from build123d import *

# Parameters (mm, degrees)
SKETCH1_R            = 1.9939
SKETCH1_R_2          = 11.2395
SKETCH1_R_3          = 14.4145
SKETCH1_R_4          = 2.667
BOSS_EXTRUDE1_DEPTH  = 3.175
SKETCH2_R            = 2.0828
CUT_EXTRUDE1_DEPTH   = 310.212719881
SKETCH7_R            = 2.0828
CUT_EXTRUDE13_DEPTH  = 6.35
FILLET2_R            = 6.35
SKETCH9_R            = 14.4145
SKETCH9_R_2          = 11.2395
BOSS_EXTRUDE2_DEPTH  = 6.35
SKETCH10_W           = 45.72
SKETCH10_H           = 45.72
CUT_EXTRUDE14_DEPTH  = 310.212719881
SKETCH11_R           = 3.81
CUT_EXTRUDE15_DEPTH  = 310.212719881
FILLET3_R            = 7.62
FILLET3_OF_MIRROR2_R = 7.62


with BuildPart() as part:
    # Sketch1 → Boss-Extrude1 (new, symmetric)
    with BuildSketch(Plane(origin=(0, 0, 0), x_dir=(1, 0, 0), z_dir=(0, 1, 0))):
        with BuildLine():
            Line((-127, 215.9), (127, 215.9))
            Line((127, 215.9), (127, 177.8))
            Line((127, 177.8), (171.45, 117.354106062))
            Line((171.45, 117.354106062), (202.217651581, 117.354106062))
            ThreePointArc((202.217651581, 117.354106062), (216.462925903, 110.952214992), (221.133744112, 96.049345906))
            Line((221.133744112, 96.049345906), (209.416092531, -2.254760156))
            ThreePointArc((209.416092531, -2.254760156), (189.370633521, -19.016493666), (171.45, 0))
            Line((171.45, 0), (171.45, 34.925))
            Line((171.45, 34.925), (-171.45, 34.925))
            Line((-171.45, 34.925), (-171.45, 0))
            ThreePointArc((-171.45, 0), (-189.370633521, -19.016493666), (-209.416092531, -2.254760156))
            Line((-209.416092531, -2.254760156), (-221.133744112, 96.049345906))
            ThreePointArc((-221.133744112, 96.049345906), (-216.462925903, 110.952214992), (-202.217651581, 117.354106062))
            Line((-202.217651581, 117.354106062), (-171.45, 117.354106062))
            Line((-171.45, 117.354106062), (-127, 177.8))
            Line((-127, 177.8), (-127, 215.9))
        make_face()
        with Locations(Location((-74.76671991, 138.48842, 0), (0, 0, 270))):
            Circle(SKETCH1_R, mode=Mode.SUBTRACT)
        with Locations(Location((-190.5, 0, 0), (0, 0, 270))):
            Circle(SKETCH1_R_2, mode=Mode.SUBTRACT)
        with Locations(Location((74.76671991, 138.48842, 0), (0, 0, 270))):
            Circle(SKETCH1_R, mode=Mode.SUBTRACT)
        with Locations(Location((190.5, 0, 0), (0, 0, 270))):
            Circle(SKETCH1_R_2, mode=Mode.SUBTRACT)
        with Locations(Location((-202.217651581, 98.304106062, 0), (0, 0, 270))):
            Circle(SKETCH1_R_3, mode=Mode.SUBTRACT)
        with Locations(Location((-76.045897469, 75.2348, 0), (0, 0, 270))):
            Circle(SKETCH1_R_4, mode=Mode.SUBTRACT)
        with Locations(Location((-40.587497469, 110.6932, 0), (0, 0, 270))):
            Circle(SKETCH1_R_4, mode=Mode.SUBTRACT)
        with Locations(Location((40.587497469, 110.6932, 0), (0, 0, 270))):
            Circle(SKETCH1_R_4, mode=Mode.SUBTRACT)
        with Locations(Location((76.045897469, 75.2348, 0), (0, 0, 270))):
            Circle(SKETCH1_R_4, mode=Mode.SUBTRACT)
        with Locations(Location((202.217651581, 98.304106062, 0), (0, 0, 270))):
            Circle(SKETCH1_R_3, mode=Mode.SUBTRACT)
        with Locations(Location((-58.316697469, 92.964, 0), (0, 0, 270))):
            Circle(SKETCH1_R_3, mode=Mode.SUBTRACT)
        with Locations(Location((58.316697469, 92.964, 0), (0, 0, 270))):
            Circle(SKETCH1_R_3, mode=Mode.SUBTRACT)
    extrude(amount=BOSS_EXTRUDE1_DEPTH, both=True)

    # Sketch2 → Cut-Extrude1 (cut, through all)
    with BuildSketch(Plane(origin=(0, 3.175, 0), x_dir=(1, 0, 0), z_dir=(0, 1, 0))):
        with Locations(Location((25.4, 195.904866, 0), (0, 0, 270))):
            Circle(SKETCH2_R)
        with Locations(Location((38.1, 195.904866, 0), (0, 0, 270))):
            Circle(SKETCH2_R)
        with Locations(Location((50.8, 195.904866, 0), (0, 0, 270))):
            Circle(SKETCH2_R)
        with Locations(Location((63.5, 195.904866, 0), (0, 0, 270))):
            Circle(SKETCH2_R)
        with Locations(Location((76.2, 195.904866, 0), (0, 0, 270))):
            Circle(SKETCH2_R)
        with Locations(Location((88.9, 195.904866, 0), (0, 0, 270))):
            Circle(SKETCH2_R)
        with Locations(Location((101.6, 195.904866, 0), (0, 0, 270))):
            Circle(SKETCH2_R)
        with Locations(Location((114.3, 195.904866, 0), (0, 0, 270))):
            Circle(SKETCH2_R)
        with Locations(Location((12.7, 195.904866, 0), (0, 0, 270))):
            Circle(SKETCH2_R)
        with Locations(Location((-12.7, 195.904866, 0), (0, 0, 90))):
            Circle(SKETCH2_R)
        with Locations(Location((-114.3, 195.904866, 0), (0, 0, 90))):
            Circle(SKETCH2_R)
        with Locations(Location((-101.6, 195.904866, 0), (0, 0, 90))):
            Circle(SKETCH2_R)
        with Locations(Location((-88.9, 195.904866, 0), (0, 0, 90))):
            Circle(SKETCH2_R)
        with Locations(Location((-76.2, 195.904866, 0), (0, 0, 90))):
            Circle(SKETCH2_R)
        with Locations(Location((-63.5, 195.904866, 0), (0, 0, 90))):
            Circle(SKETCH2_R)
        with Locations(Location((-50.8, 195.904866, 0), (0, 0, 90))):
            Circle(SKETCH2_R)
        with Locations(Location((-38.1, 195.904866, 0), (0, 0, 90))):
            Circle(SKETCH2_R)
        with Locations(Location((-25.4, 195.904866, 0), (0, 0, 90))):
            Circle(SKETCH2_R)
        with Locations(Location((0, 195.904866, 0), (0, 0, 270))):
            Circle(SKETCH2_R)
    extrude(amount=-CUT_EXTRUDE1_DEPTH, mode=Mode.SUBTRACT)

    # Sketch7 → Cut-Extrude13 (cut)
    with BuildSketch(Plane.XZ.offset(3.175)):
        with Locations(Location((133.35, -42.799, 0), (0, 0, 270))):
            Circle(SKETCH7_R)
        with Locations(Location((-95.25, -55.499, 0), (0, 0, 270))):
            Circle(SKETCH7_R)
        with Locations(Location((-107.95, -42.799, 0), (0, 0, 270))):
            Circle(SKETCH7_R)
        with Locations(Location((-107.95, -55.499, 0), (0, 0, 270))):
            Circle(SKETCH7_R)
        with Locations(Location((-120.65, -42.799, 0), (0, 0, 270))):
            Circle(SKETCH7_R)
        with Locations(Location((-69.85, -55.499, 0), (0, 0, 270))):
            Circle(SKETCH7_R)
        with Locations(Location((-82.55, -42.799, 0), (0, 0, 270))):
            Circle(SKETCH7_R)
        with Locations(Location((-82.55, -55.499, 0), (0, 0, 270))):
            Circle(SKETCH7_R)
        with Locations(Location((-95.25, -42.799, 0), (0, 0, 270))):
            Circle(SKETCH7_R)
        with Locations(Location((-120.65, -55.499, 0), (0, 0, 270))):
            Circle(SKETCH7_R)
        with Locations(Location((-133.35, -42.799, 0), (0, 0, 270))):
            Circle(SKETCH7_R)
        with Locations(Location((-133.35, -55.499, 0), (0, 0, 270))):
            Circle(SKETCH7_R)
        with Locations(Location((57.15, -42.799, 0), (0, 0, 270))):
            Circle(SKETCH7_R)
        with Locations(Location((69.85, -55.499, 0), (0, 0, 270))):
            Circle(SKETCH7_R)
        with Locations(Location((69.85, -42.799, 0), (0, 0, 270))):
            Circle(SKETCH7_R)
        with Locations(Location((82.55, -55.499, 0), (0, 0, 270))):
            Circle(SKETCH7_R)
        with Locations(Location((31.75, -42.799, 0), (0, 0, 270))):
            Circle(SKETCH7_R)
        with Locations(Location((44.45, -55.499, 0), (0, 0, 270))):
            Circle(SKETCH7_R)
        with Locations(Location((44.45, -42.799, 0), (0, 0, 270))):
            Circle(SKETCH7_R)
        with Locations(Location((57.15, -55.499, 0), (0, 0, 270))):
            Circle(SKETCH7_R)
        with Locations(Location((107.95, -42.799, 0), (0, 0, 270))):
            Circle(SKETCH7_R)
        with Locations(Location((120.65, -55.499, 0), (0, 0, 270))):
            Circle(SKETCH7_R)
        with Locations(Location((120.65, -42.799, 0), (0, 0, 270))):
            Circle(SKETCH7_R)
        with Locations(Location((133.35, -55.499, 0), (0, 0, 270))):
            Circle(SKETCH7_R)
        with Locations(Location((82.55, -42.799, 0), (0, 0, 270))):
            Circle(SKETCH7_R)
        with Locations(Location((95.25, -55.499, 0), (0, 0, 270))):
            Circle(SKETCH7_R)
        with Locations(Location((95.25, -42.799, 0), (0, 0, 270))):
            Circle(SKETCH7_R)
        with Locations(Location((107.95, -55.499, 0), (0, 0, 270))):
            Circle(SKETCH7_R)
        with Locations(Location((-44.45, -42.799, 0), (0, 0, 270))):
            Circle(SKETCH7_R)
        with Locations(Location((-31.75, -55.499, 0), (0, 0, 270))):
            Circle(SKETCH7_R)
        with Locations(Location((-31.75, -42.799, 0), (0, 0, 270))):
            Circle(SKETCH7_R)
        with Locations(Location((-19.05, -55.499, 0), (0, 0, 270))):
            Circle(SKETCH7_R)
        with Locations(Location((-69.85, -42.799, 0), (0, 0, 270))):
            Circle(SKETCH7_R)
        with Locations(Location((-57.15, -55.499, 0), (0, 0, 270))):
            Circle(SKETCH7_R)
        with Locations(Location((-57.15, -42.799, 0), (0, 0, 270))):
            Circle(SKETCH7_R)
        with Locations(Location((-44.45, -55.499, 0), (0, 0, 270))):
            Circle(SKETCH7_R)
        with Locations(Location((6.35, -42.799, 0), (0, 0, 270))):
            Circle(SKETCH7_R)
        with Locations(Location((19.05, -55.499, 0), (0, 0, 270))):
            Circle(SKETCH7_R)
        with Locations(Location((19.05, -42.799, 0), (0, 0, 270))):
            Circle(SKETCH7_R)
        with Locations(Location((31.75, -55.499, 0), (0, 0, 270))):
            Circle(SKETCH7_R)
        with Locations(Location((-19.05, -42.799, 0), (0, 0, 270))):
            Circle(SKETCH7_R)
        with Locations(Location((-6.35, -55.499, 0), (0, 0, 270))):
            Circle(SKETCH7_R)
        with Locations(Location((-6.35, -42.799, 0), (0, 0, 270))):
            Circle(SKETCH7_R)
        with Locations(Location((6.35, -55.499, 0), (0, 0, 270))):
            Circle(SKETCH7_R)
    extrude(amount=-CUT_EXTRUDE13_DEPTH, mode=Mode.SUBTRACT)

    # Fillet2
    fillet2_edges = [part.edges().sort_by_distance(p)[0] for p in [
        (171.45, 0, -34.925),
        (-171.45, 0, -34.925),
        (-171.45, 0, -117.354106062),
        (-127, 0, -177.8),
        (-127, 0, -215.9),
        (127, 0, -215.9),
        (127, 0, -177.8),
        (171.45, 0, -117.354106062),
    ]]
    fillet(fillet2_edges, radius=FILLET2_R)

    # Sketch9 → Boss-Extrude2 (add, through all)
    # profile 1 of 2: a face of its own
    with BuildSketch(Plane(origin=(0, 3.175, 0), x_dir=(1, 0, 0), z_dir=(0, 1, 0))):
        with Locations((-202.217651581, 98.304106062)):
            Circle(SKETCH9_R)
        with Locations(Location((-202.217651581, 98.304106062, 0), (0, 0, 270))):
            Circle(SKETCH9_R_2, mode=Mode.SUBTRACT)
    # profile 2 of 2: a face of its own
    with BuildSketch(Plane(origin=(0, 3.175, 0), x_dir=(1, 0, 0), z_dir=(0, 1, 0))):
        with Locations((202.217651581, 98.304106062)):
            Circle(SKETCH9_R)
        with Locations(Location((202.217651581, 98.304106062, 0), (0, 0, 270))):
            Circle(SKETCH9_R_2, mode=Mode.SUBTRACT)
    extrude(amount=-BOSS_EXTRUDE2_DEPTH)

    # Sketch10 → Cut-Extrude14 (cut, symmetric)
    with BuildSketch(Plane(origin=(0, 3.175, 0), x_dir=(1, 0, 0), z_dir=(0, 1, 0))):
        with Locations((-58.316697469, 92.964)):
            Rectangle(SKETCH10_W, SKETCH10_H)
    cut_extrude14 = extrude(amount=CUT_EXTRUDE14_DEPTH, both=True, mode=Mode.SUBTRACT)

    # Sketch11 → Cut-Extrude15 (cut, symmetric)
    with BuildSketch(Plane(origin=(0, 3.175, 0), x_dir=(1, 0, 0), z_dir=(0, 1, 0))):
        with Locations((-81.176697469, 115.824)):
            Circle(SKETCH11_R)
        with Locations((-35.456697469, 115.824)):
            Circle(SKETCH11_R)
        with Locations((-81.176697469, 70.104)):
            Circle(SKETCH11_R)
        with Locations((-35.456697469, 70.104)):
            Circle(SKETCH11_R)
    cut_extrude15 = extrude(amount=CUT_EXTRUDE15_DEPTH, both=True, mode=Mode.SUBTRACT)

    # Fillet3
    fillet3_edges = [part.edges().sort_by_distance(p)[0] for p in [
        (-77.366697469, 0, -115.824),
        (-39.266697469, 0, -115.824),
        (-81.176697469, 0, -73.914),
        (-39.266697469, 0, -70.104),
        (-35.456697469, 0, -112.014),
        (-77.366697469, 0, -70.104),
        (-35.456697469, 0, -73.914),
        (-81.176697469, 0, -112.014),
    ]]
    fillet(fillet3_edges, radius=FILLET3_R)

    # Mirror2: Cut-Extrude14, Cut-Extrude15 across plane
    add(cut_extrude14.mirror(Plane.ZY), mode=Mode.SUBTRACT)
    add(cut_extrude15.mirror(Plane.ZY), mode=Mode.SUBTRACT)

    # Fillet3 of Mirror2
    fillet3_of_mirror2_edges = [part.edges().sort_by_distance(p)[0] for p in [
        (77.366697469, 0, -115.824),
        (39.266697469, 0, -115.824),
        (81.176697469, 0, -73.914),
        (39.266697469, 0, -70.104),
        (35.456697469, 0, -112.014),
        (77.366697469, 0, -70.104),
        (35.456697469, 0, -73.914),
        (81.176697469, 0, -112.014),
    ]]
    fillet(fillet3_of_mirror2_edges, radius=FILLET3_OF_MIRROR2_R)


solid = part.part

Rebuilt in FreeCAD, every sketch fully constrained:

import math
import FreeCAD as App
import Part
import Sketcher
from FreeCAD import Vector
Q = App.Units.Quantity


def edges_at(feature, points):
    """Names of the edges that pass closest to the given points."""
    edges = feature.Shape.Edges
    near = lambda p: min(range(len(edges)), key=lambda i: edges[i].distToShape(Part.Vertex(*p))[0])
    return sorted({f"Edge{near(p) + 1}" for p in points})


def add_polygon(sketch, points):
    """Adds a closed chain of lines whose ends are joined by coincident constraints."""
    first, n = sketch.GeometryCount, len(points)
    for a, b in zip(points, points[1:] + points[:1]):
        sketch.addGeometry(Part.LineSegment(App.Vector(*a, 0), App.Vector(*b, 0)), False)
    for i in range(n):
        sketch.addConstraint(Sketcher.Constraint("Coincident", first + i, 2, first + (i + 1) % n, 1))

doc = App.newDocument("Part")
body = doc.addObject("PartDesign::Body", "Body")

sketch1 = body.newObject("Sketcher::SketchObject", "Sketch")
sketch1.AttachmentSupport = (doc.getObject("XZ_Plane"), [""])
sketch1.MapMode = "FlatFace"
sketch1.addGeometry(Part.LineSegment(Vector(127, -215.9, 0), Vector(-127, -215.9, 0)), False)
sketch1.addGeometry(Part.LineSegment(Vector(-127, -215.9, 0), Vector(-127, -177.8, 0)), False)
sketch1.addGeometry(Part.LineSegment(Vector(-127, -177.8, 0), Vector(-171.4, -117.4, 0)), False)
sketch1.addGeometry(Part.LineSegment(Vector(-171.4, -117.4, 0), Vector(-202.2, -117.4, 0)), False)
sketch1.addGeometry(Part.ArcOfCircle(Part.Circle(Vector(-202.2, -98.3, 0), Vector(0, 0, 1), 19), math.radians(173), math.radians(270)), False)
sketch1.addGeometry(Part.LineSegment(Vector(-221.1, -96, 0), Vector(-209.4, 2.3, 0)), False)
sketch1.addGeometry(Part.ArcOfCircle(Part.Circle(Vector(-190.5, 0, 0), Vector(0, 0, 1), 19.1), math.radians(0), math.radians(173)), False)
sketch1.addGeometry(Part.LineSegment(Vector(-171.4, 0, 0), Vector(-171.4, -34.9, 0)), False)
sketch1.addGeometry(Part.LineSegment(Vector(-171.4, -34.9, 0), Vector(171.4, -34.9, 0)), False)
sketch1.addGeometry(Part.LineSegment(Vector(171.4, -34.9, 0), Vector(171.4, 0, 0)), False)
sketch1.addGeometry(Part.ArcOfCircle(Part.Circle(Vector(190.5, 0, 0), Vector(0, 0, 1), 19.1), math.radians(7), math.radians(180)), False)
sketch1.addGeometry(Part.LineSegment(Vector(209.4, 2.3, 0), Vector(221.1, -96, 0)), False)
sketch1.addGeometry(Part.ArcOfCircle(Part.Circle(Vector(202.2, -98.3, 0), Vector(0, 0, 1), 19), math.radians(-90), math.radians(7)), False)
sketch1.addGeometry(Part.LineSegment(Vector(202.2, -117.4, 0), Vector(171.4, -117.4, 0)), False)
sketch1.addGeometry(Part.LineSegment(Vector(171.4, -117.4, 0), Vector(127, -177.8, 0)), False)
sketch1.addGeometry(Part.LineSegment(Vector(127, -177.8, 0), Vector(127, -215.9, 0)), False)
sketch1.addGeometry(Part.Circle(Vector(190.5, 0, 0), Vector(0, 0, 1), 11.2), False)
sketch1.addGeometry(Part.Circle(Vector(-190.5, 0, 0), Vector(0, 0, 1), 11.2), False)
sketch1.addGeometry(Part.Circle(Vector(202.2, -98.3, 0), Vector(0, 0, 1), 14.4), False)
sketch1.addGeometry(Part.Circle(Vector(76, -75.2, 0), Vector(0, 0, 1), 2.7), False)
sketch1.addGeometry(Part.Circle(Vector(58.3, -93, 0), Vector(0, 0, 1), 14.4), False)
sketch1.addGeometry(Part.Circle(Vector(40.6, -110.7, 0), Vector(0, 0, 1), 2.7), False)
sketch1.addGeometry(Part.Circle(Vector(74.8, -138.5, 0), Vector(0, 0, 1), 2), False)
sketch1.addGeometry(Part.Circle(Vector(-76, -75.2, 0), Vector(0, 0, 1), 2.7), False)
sketch1.addGeometry(Part.Circle(Vector(-58.3, -93, 0), Vector(0, 0, 1), 14.4), False)
sketch1.addGeometry(Part.Circle(Vector(-202.2, -98.3, 0), Vector(0, 0, 1), 14.4), False)
sketch1.addGeometry(Part.Circle(Vector(-40.6, -110.7, 0), Vector(0, 0, 1), 2.7), False)
sketch1.addGeometry(Part.Circle(Vector(-74.8, -138.5, 0), Vector(0, 0, 1), 2), False)
sketch1.addConstraint(Sketcher.Constraint("Coincident", 0, 2, 1, 1))
sketch1.addConstraint(Sketcher.Constraint("Coincident", 1, 2, 2, 1))
sketch1.addConstraint(Sketcher.Constraint("Coincident", 2, 2, 3, 1))
sketch1.addConstraint(Sketcher.Constraint("Tangent", 3, 2, 4, 2))
sketch1.addConstraint(Sketcher.Constraint("Tangent", 4, 1, 5, 1))
sketch1.addConstraint(Sketcher.Constraint("Tangent", 5, 2, 6, 2))
sketch1.addConstraint(Sketcher.Constraint("Tangent", 6, 1, 7, 1))
sketch1.addConstraint(Sketcher.Constraint("Coincident", 7, 2, 8, 1))
sketch1.addConstraint(Sketcher.Constraint("Coincident", 8, 2, 9, 1))
sketch1.addConstraint(Sketcher.Constraint("Tangent", 9, 2, 10, 2))
sketch1.addConstraint(Sketcher.Constraint("Tangent", 10, 1, 11, 1))
sketch1.addConstraint(Sketcher.Constraint("Tangent", 11, 2, 12, 2))
sketch1.addConstraint(Sketcher.Constraint("Tangent", 12, 1, 13, 1))
sketch1.addConstraint(Sketcher.Constraint("Coincident", 13, 2, 14, 1))
sketch1.addConstraint(Sketcher.Constraint("Coincident", 14, 2, 15, 1))
sketch1.addConstraint(Sketcher.Constraint("Coincident", 15, 2, 0, 1))
sketch1.addConstraint(Sketcher.Constraint("Horizontal", 0))
sketch1.addConstraint(Sketcher.Constraint("Vertical", 1))
sketch1.addConstraint(Sketcher.Constraint("Horizontal", 3))
sketch1.addConstraint(Sketcher.Constraint("Vertical", 7))
sketch1.addConstraint(Sketcher.Constraint("Horizontal", 8))
sketch1.addConstraint(Sketcher.Constraint("Vertical", 9))
sketch1.addConstraint(Sketcher.Constraint("Horizontal", 13))
sketch1.addConstraint(Sketcher.Constraint("Vertical", 15))
sketch1.addConstraint(Sketcher.Constraint("Coincident", 16, 3, 10, 3))
sketch1.addConstraint(Sketcher.Constraint("Coincident", 17, 3, 6, 3))
sketch1.addConstraint(Sketcher.Constraint("Coincident", 18, 3, 12, 3))
sketch1.addConstraint(Sketcher.Constraint("Coincident", 25, 3, 4, 3))
sketch1.addConstraint(Sketcher.Constraint("Equal", 4, 6))
sketch1.addConstraint(Sketcher.Constraint("Equal", 6, 10))
sketch1.addConstraint(Sketcher.Constraint("Equal", 10, 12))
sketch1.addConstraint(Sketcher.Constraint("Equal", 16, 17))
sketch1.addConstraint(Sketcher.Constraint("Equal", 18, 20))
sketch1.addConstraint(Sketcher.Constraint("Equal", 19, 21))
sketch1.addConstraint(Sketcher.Constraint("Equal", 21, 23))
sketch1.addConstraint(Sketcher.Constraint("Equal", 20, 24))
sketch1.addConstraint(Sketcher.Constraint("Equal", 24, 25))
sketch1.addConstraint(Sketcher.Constraint("Equal", 23, 26))
sketch1.addConstraint(Sketcher.Constraint("Equal", 22, 27))
sketch1.addConstraint(Sketcher.Constraint("Symmetric", 6, 3, 10, 3, -1, 1))
sketch1.addConstraint(Sketcher.Constraint("Symmetric", 4, 3, 12, 3, -2))
sketch1.addConstraint(Sketcher.Constraint("Symmetric", 19, 3, 23, 3, -2))
sketch1.addConstraint(Sketcher.Constraint("Symmetric", 20, 3, 24, 3, -2))
sketch1.addConstraint(Sketcher.Constraint("Symmetric", 21, 3, 26, 3, -2))
sketch1.addConstraint(Sketcher.Constraint("Symmetric", 22, 3, 27, 3, -2))
sketch1.addConstraint(Sketcher.Constraint("Symmetric", 1, 2, 14, 2, -2))
sketch1.addConstraint(Sketcher.Constraint("PointOnObject", 6, 3, -1))
sketch1.addConstraint(Sketcher.Constraint("Vertical", 2, 2, 6, 1))
sketch1.addConstraint(Sketcher.Constraint("Vertical", 9, 2, 13, 2))
sketch1.addConstraint(Sketcher.Constraint("Diameter", 19, Q("0.21 in")))
sketch1.addConstraint(Sketcher.Constraint("DistanceX", 0, 2, 0, 1, Q("10 in")))
sketch1.addConstraint(Sketcher.Constraint("Radius", 4, Q("0.75 in")))
sketch1.addConstraint(Sketcher.Constraint("Diameter", 16, Q("0.885 in")))
sketch1.addConstraint(Sketcher.Constraint("Diameter", 18, Q("1.135 in")))
sketch1.addConstraint(Sketcher.Constraint("Diameter", 22, Q("0.157 in")))
sketch1.addConstraint(Sketcher.Constraint("DistanceX", 8, 1, 8, 2, Q("13.5 in")))
sketch1.addConstraint(Sketcher.Constraint("DistanceY", 1, 1, 1, 2, Q("1.5 in")))
sketch1.addConstraint(Sketcher.Constraint("DistanceY", 1, 2, -1, 1, Q("7 in")))
sketch1.addConstraint(Sketcher.Constraint("DistanceY", 7, 2, 7, 1, Q("1.375 in")))
sketch1.addConstraint(Sketcher.Constraint("DistanceY", 20, 3, -1, 1, Q("3.66 in")))
sketch1.addConstraint(Sketcher.Constraint("DistanceY", 19, 3, -1, 1, Q("2.962 in")))
sketch1.addConstraint(Sketcher.Constraint("DistanceY", 21, 3, -1, 1, Q("4.358 in")))
sketch1.addConstraint(Sketcher.Constraint("DistanceX", 20, 3, 19, 3, Q("0.698 in")))
sketch1.addConstraint(Sketcher.Constraint("DistanceX", 21, 3, 20, 3, Q("0.698 in")))
sketch1.addConstraint(Sketcher.Constraint("DistanceY", 22, 3, -1, 1, Q("5.4523 in")))
sketch1.addConstraint(Sketcher.Constraint("DistanceX", 3, 2, 3, 1, Q("30.767652 mm")))
sketch1.addConstraint(Sketcher.Constraint("Distance", 2, Q("75.030051 mm")))
sketch1.addConstraint(Sketcher.Constraint("DistanceX", -1, 1, 22, 3, Q("74.76672 mm")))
sketch1.addConstraint(Sketcher.Constraint("DistanceX", -1, 1, 19, 3, Q("76.045897 mm")))
pad1 = body.newObject("PartDesign::Pad", "Pad")
pad1.Profile = sketch1
pad1.Length = Q("0.25 in")
pad1.Midplane = True

sketch2 = body.newObject("Sketcher::SketchObject", "Sketch001")
sketch2.AttachmentSupport = (doc.getObject("XZ_Plane"), [""])
sketch2.MapMode = "FlatFace"
sketch2.AttachmentOffset = App.Placement(Vector(0, 0, -0.125 * 25.4), App.Rotation())
sketch2.addGeometry(Part.Circle(Vector(25.4, -195.9, 0), Vector(0, 0, 1), 2.1), False)
sketch2.addGeometry(Part.Circle(Vector(38.1, -195.9, 0), Vector(0, 0, 1), 2.1), False)
sketch2.addGeometry(Part.Circle(Vector(50.8, -195.9, 0), Vector(0, 0, 1), 2.1), False)
sketch2.addGeometry(Part.Circle(Vector(63.5, -195.9, 0), Vector(0, 0, 1), 2.1), False)
sketch2.addGeometry(Part.Circle(Vector(76.2, -195.9, 0), Vector(0, 0, 1), 2.1), False)
sketch2.addGeometry(Part.Circle(Vector(88.9, -195.9, 0), Vector(0, 0, 1), 2.1), False)
sketch2.addGeometry(Part.Circle(Vector(101.6, -195.9, 0), Vector(0, 0, 1), 2.1), False)
sketch2.addGeometry(Part.Circle(Vector(114.3, -195.9, 0), Vector(0, 0, 1), 2.1), False)
sketch2.addGeometry(Part.Circle(Vector(12.7, -195.9, 0), Vector(0, 0, 1), 2.1), False)
sketch2.addGeometry(Part.Circle(Vector(-12.7, -195.9, 0), Vector(0, 0, 1), 2.1), False)
sketch2.addGeometry(Part.Circle(Vector(-114.3, -195.9, 0), Vector(0, 0, 1), 2.1), False)
sketch2.addGeometry(Part.Circle(Vector(-101.6, -195.9, 0), Vector(0, 0, 1), 2.1), False)
sketch2.addGeometry(Part.Circle(Vector(-88.9, -195.9, 0), Vector(0, 0, 1), 2.1), False)
sketch2.addGeometry(Part.Circle(Vector(-76.2, -195.9, 0), Vector(0, 0, 1), 2.1), False)
sketch2.addGeometry(Part.Circle(Vector(-63.5, -195.9, 0), Vector(0, 0, 1), 2.1), False)
sketch2.addGeometry(Part.Circle(Vector(-50.8, -195.9, 0), Vector(0, 0, 1), 2.1), False)
sketch2.addGeometry(Part.Circle(Vector(-38.1, -195.9, 0), Vector(0, 0, 1), 2.1), False)
sketch2.addGeometry(Part.Circle(Vector(-25.4, -195.9, 0), Vector(0, 0, 1), 2.1), False)
sketch2.addGeometry(Part.Circle(Vector(0, -195.9, 0), Vector(0, 0, 1), 2.1), False)
sketch2.addConstraint(Sketcher.Constraint("Equal", 0, 1))
sketch2.addConstraint(Sketcher.Constraint("Equal", 1, 2))
sketch2.addConstraint(Sketcher.Constraint("Equal", 2, 3))
sketch2.addConstraint(Sketcher.Constraint("Equal", 3, 4))
sketch2.addConstraint(Sketcher.Constraint("Equal", 4, 5))
sketch2.addConstraint(Sketcher.Constraint("Equal", 5, 6))
sketch2.addConstraint(Sketcher.Constraint("Equal", 6, 7))
sketch2.addConstraint(Sketcher.Constraint("Equal", 7, 8))
sketch2.addConstraint(Sketcher.Constraint("Equal", 8, 9))
sketch2.addConstraint(Sketcher.Constraint("Equal", 9, 10))
sketch2.addConstraint(Sketcher.Constraint("Equal", 10, 11))
sketch2.addConstraint(Sketcher.Constraint("Equal", 11, 12))
sketch2.addConstraint(Sketcher.Constraint("Equal", 12, 13))
sketch2.addConstraint(Sketcher.Constraint("Equal", 13, 14))
sketch2.addConstraint(Sketcher.Constraint("Equal", 14, 15))
sketch2.addConstraint(Sketcher.Constraint("Equal", 15, 16))
sketch2.addConstraint(Sketcher.Constraint("Equal", 16, 17))
sketch2.addConstraint(Sketcher.Constraint("Equal", 17, 18))
sketch2.addConstraint(Sketcher.Constraint("Symmetric", 8, 3, 9, 3, -2))
sketch2.addConstraint(Sketcher.Constraint("Symmetric", 7, 3, 10, 3, -2))
sketch2.addConstraint(Sketcher.Constraint("Symmetric", 6, 3, 11, 3, -2))
sketch2.addConstraint(Sketcher.Constraint("Symmetric", 5, 3, 12, 3, -2))
sketch2.addConstraint(Sketcher.Constraint("Symmetric", 4, 3, 13, 3, -2))
sketch2.addConstraint(Sketcher.Constraint("Symmetric", 3, 3, 14, 3, -2))
sketch2.addConstraint(Sketcher.Constraint("Symmetric", 2, 3, 15, 3, -2))
sketch2.addConstraint(Sketcher.Constraint("Symmetric", 1, 3, 16, 3, -2))
sketch2.addConstraint(Sketcher.Constraint("Symmetric", 0, 3, 17, 3, -2))
sketch2.addConstraint(Sketcher.Constraint("PointOnObject", 18, 3, -2))
sketch2.addConstraint(Sketcher.Constraint("Horizontal", 0, 3, 1, 3))
sketch2.addConstraint(Sketcher.Constraint("Horizontal", 1, 3, 2, 3))
sketch2.addConstraint(Sketcher.Constraint("Horizontal", 2, 3, 3, 3))
sketch2.addConstraint(Sketcher.Constraint("Horizontal", 3, 3, 4, 3))
sketch2.addConstraint(Sketcher.Constraint("Horizontal", 4, 3, 5, 3))
sketch2.addConstraint(Sketcher.Constraint("Horizontal", 5, 3, 6, 3))
sketch2.addConstraint(Sketcher.Constraint("Horizontal", 6, 3, 7, 3))
sketch2.addConstraint(Sketcher.Constraint("Horizontal", 7, 3, 8, 3))
sketch2.addConstraint(Sketcher.Constraint("Horizontal", 17, 3, 18, 3))
sketch2.addConstraint(Sketcher.Constraint("Diameter", 0, Q("0.164 in")))
sketch2.addConstraint(Sketcher.Constraint("DistanceX", -1, 1, 0, 3, Q("1 in")))
sketch2.addConstraint(Sketcher.Constraint("DistanceX", -1, 1, 2, 3, Q("2 in")))
sketch2.addConstraint(Sketcher.Constraint("DistanceX", -1, 1, 4, 3, Q("3 in")))
sketch2.addConstraint(Sketcher.Constraint("DistanceX", -1, 1, 6, 3, Q("4 in")))
sketch2.addConstraint(Sketcher.Constraint("DistanceX", 1, 3, 3, 3, Q("1 in")))
sketch2.addConstraint(Sketcher.Constraint("DistanceX", 3, 3, 5, 3, Q("1 in")))
sketch2.addConstraint(Sketcher.Constraint("DistanceX", 5, 3, 7, 3, Q("1 in")))
sketch2.addConstraint(Sketcher.Constraint("DistanceX", 8, 3, 1, 3, Q("1 in")))
sketch2.addConstraint(Sketcher.Constraint("DistanceX", 9, 3, 8, 3, Q("1 in")))
sketch2.addConstraint(Sketcher.Constraint("DistanceY", 0, 3, -1, 1, Q("195.904866 mm")))
pocket1 = body.newObject("PartDesign::Pocket", "Pocket")
pocket1.Profile = sketch2
pocket1.Type = "ThroughAll"
pocket1.Reversed = True

sketch3 = body.newObject("Sketcher::SketchObject", "Sketch002")
sketch3.AttachmentSupport = (doc.getObject("XZ_Plane"), [""])
sketch3.MapMode = "FlatFace"
sketch3.AttachmentOffset = App.Placement(Vector(0, 0, 0.125 * 25.4), App.Rotation())
sketch3.addGeometry(Part.Circle(Vector(133.3, -42.8, 0), Vector(0, 0, 1), 2.1), False)
sketch3.addGeometry(Part.Circle(Vector(-95.2, -55.5, 0), Vector(0, 0, 1), 2.1), False)
sketch3.addGeometry(Part.Circle(Vector(-108, -42.8, 0), Vector(0, 0, 1), 2.1), False)
sketch3.addGeometry(Part.Circle(Vector(-108, -55.5, 0), Vector(0, 0, 1), 2.1), False)
sketch3.addGeometry(Part.Circle(Vector(-120.7, -42.8, 0), Vector(0, 0, 1), 2.1), False)
sketch3.addGeometry(Part.Circle(Vector(-69.8, -55.5, 0), Vector(0, 0, 1), 2.1), False)
sketch3.addGeometry(Part.Circle(Vector(-82.5, -42.8, 0), Vector(0, 0, 1), 2.1), False)
sketch3.addGeometry(Part.Circle(Vector(-82.5, -55.5, 0), Vector(0, 0, 1), 2.1), False)
sketch3.addGeometry(Part.Circle(Vector(-95.2, -42.8, 0), Vector(0, 0, 1), 2.1), False)
sketch3.addGeometry(Part.Circle(Vector(-120.7, -55.5, 0), Vector(0, 0, 1), 2.1), False)
sketch3.addGeometry(Part.Circle(Vector(-133.3, -42.8, 0), Vector(0, 0, 1), 2.1), False)
sketch3.addGeometry(Part.Circle(Vector(-133.3, -55.5, 0), Vector(0, 0, 1), 2.1), False)
sketch3.addGeometry(Part.Circle(Vector(57.1, -42.8, 0), Vector(0, 0, 1), 2.1), False)
sketch3.addGeometry(Part.Circle(Vector(69.8, -55.5, 0), Vector(0, 0, 1), 2.1), False)
sketch3.addGeometry(Part.Circle(Vector(69.8, -42.8, 0), Vector(0, 0, 1), 2.1), False)
sketch3.addGeometry(Part.Circle(Vector(82.5, -55.5, 0), Vector(0, 0, 1), 2.1), False)
sketch3.addGeometry(Part.Circle(Vector(31.8, -42.8, 0), Vector(0, 0, 1), 2.1), False)
sketch3.addGeometry(Part.Circle(Vector(44.5, -55.5, 0), Vector(0, 0, 1), 2.1), False)
sketch3.addGeometry(Part.Circle(Vector(44.5, -42.8, 0), Vector(0, 0, 1), 2.1), False)
sketch3.addGeometry(Part.Circle(Vector(57.1, -55.5, 0), Vector(0, 0, 1), 2.1), False)
sketch3.addGeometry(Part.Circle(Vector(108, -42.8, 0), Vector(0, 0, 1), 2.1), False)
sketch3.addGeometry(Part.Circle(Vector(120.7, -55.5, 0), Vector(0, 0, 1), 2.1), False)
sketch3.addGeometry(Part.Circle(Vector(120.7, -42.8, 0), Vector(0, 0, 1), 2.1), False)
sketch3.addGeometry(Part.Circle(Vector(133.3, -55.5, 0), Vector(0, 0, 1), 2.1), False)
sketch3.addGeometry(Part.Circle(Vector(82.5, -42.8, 0), Vector(0, 0, 1), 2.1), False)
sketch3.addGeometry(Part.Circle(Vector(95.2, -55.5, 0), Vector(0, 0, 1), 2.1), False)
sketch3.addGeometry(Part.Circle(Vector(95.2, -42.8, 0), Vector(0, 0, 1), 2.1), False)
sketch3.addGeometry(Part.Circle(Vector(108, -55.5, 0), Vector(0, 0, 1), 2.1), False)
sketch3.addGeometry(Part.Circle(Vector(-44.5, -42.8, 0), Vector(0, 0, 1), 2.1), False)
sketch3.addGeometry(Part.Circle(Vector(-31.8, -55.5, 0), Vector(0, 0, 1), 2.1), False)
sketch3.addGeometry(Part.Circle(Vector(-31.8, -42.8, 0), Vector(0, 0, 1), 2.1), False)
sketch3.addGeometry(Part.Circle(Vector(-19.1, -55.5, 0), Vector(0, 0, 1), 2.1), False)
sketch3.addGeometry(Part.Circle(Vector(-69.8, -42.8, 0), Vector(0, 0, 1), 2.1), False)
sketch3.addGeometry(Part.Circle(Vector(-57.1, -55.5, 0), Vector(0, 0, 1), 2.1), False)
sketch3.addGeometry(Part.Circle(Vector(-57.1, -42.8, 0), Vector(0, 0, 1), 2.1), False)
sketch3.addGeometry(Part.Circle(Vector(-44.5, -55.5, 0), Vector(0, 0, 1), 2.1), False)
sketch3.addGeometry(Part.Circle(Vector(6.3, -42.8, 0), Vector(0, 0, 1), 2.1), False)
sketch3.addGeometry(Part.Circle(Vector(19.1, -55.5, 0), Vector(0, 0, 1), 2.1), False)
sketch3.addGeometry(Part.Circle(Vector(19.1, -42.8, 0), Vector(0, 0, 1), 2.1), False)
sketch3.addGeometry(Part.Circle(Vector(31.8, -55.5, 0), Vector(0, 0, 1), 2.1), False)
sketch3.addGeometry(Part.Circle(Vector(-19.1, -42.8, 0), Vector(0, 0, 1), 2.1), False)
sketch3.addGeometry(Part.Circle(Vector(-6.3, -55.5, 0), Vector(0, 0, 1), 2.1), False)
sketch3.addGeometry(Part.Circle(Vector(-6.3, -42.8, 0), Vector(0, 0, 1), 2.1), False)
sketch3.addGeometry(Part.Circle(Vector(6.3, -55.5, 0), Vector(0, 0, 1), 2.1), False)
sketch3.addConstraint(Sketcher.Constraint("Equal", 0, 1))
sketch3.addConstraint(Sketcher.Constraint("Equal", 1, 2))
sketch3.addConstraint(Sketcher.Constraint("Equal", 2, 3))
sketch3.addConstraint(Sketcher.Constraint("Equal", 3, 4))
sketch3.addConstraint(Sketcher.Constraint("Equal", 4, 5))
sketch3.addConstraint(Sketcher.Constraint("Equal", 5, 6))
sketch3.addConstraint(Sketcher.Constraint("Equal", 6, 7))
sketch3.addConstraint(Sketcher.Constraint("Equal", 7, 8))
sketch3.addConstraint(Sketcher.Constraint("Equal", 8, 9))
sketch3.addConstraint(Sketcher.Constraint("Equal", 9, 10))
sketch3.addConstraint(Sketcher.Constraint("Equal", 10, 11))
sketch3.addConstraint(Sketcher.Constraint("Equal", 11, 12))
sketch3.addConstraint(Sketcher.Constraint("Equal", 12, 13))
sketch3.addConstraint(Sketcher.Constraint("Equal", 13, 14))
sketch3.addConstraint(Sketcher.Constraint("Equal", 14, 15))
sketch3.addConstraint(Sketcher.Constraint("Equal", 15, 16))
sketch3.addConstraint(Sketcher.Constraint("Equal", 16, 17))
sketch3.addConstraint(Sketcher.Constraint("Equal", 17, 18))
sketch3.addConstraint(Sketcher.Constraint("Equal", 18, 19))
sketch3.addConstraint(Sketcher.Constraint("Equal", 19, 20))
sketch3.addConstraint(Sketcher.Constraint("Equal", 20, 21))
sketch3.addConstraint(Sketcher.Constraint("Equal", 21, 22))
sketch3.addConstraint(Sketcher.Constraint("Equal", 22, 23))
sketch3.addConstraint(Sketcher.Constraint("Equal", 23, 24))
sketch3.addConstraint(Sketcher.Constraint("Equal", 24, 25))
sketch3.addConstraint(Sketcher.Constraint("Equal", 25, 26))
sketch3.addConstraint(Sketcher.Constraint("Equal", 26, 27))
sketch3.addConstraint(Sketcher.Constraint("Equal", 27, 28))
sketch3.addConstraint(Sketcher.Constraint("Equal", 28, 29))
sketch3.addConstraint(Sketcher.Constraint("Equal", 29, 30))
sketch3.addConstraint(Sketcher.Constraint("Equal", 30, 31))
sketch3.addConstraint(Sketcher.Constraint("Equal", 31, 32))
sketch3.addConstraint(Sketcher.Constraint("Equal", 32, 33))
sketch3.addConstraint(Sketcher.Constraint("Equal", 33, 34))
sketch3.addConstraint(Sketcher.Constraint("Equal", 34, 35))
sketch3.addConstraint(Sketcher.Constraint("Equal", 35, 36))
sketch3.addConstraint(Sketcher.Constraint("Equal", 36, 37))
sketch3.addConstraint(Sketcher.Constraint("Equal", 37, 38))
sketch3.addConstraint(Sketcher.Constraint("Equal", 38, 39))
sketch3.addConstraint(Sketcher.Constraint("Equal", 39, 40))
sketch3.addConstraint(Sketcher.Constraint("Equal", 40, 41))
sketch3.addConstraint(Sketcher.Constraint("Equal", 41, 42))
sketch3.addConstraint(Sketcher.Constraint("Equal", 42, 43))
sketch3.addConstraint(Sketcher.Constraint("Symmetric", 0, 3, 10, 3, -2))
sketch3.addConstraint(Sketcher.Constraint("Symmetric", 5, 3, 13, 3, -2))
sketch3.addConstraint(Sketcher.Constraint("Symmetric", 7, 3, 15, 3, -2))
sketch3.addConstraint(Sketcher.Constraint("Symmetric", 2, 3, 20, 3, -2))
sketch3.addConstraint(Sketcher.Constraint("Symmetric", 9, 3, 21, 3, -2))
sketch3.addConstraint(Sketcher.Constraint("Symmetric", 4, 3, 22, 3, -2))
sketch3.addConstraint(Sketcher.Constraint("Symmetric", 11, 3, 23, 3, -2))
sketch3.addConstraint(Sketcher.Constraint("Symmetric", 6, 3, 24, 3, -2))
sketch3.addConstraint(Sketcher.Constraint("Symmetric", 1, 3, 25, 3, -2))
sketch3.addConstraint(Sketcher.Constraint("Symmetric", 8, 3, 26, 3, -2))
sketch3.addConstraint(Sketcher.Constraint("Symmetric", 3, 3, 27, 3, -2))
sketch3.addConstraint(Sketcher.Constraint("Symmetric", 18, 3, 28, 3, -2))
sketch3.addConstraint(Sketcher.Constraint("Symmetric", 16, 3, 30, 3, -2))
sketch3.addConstraint(Sketcher.Constraint("Symmetric", 14, 3, 32, 3, -2))
sketch3.addConstraint(Sketcher.Constraint("Symmetric", 19, 3, 33, 3, -2))
sketch3.addConstraint(Sketcher.Constraint("Symmetric", 12, 3, 34, 3, -2))
sketch3.addConstraint(Sketcher.Constraint("Symmetric", 17, 3, 35, 3, -2))
sketch3.addConstraint(Sketcher.Constraint("Symmetric", 31, 3, 37, 3, -2))
sketch3.addConstraint(Sketcher.Constraint("Symmetric", 29, 3, 39, 3, -2))
sketch3.addConstraint(Sketcher.Constraint("Symmetric", 38, 3, 40, 3, -2))
sketch3.addConstraint(Sketcher.Constraint("Symmetric", 36, 3, 42, 3, -2))
sketch3.addConstraint(Sketcher.Constraint("Symmetric", 41, 3, 43, 3, -2))
sketch3.addConstraint(Sketcher.Constraint("Horizontal", 0, 3, 2, 3))
sketch3.addConstraint(Sketcher.Constraint("Horizontal", 1, 3, 3, 3))
sketch3.addConstraint(Sketcher.Constraint("Horizontal", 2, 3, 4, 3))
sketch3.addConstraint(Sketcher.Constraint("Horizontal", 3, 3, 5, 3))
sketch3.addConstraint(Sketcher.Constraint("Horizontal", 4, 3, 6, 3))
sketch3.addConstraint(Sketcher.Constraint("Horizontal", 5, 3, 7, 3))
sketch3.addConstraint(Sketcher.Constraint("Horizontal", 6, 3, 8, 3))
sketch3.addConstraint(Sketcher.Constraint("Horizontal", 7, 3, 9, 3))
sketch3.addConstraint(Sketcher.Constraint("Horizontal", 9, 3, 11, 3))
sketch3.addConstraint(Sketcher.Constraint("Horizontal", 10, 3, 12, 3))
sketch3.addConstraint(Sketcher.Constraint("Horizontal", 12, 3, 14, 3))
sketch3.addConstraint(Sketcher.Constraint("Horizontal", 14, 3, 16, 3))
sketch3.addConstraint(Sketcher.Constraint("Horizontal", 15, 3, 17, 3))
sketch3.addConstraint(Sketcher.Constraint("Horizontal", 16, 3, 18, 3))
sketch3.addConstraint(Sketcher.Constraint("Horizontal", 17, 3, 19, 3))
sketch3.addConstraint(Sketcher.Constraint("Horizontal", 27, 3, 29, 3))
sketch3.addConstraint(Sketcher.Constraint("Horizontal", 29, 3, 31, 3))
sketch3.addConstraint(Sketcher.Constraint("Horizontal", 34, 3, 36, 3))
sketch3.addConstraint(Sketcher.Constraint("Horizontal", 36, 3, 38, 3))
sketch3.addConstraint(Sketcher.Constraint("Horizontal", 39, 3, 41, 3))
sketch3.addConstraint(Sketcher.Constraint("Vertical", 2, 3, 3, 3))
sketch3.addConstraint(Sketcher.Constraint("Vertical", 6, 3, 7, 3))
sketch3.addConstraint(Sketcher.Constraint("Vertical", 1, 3, 8, 3))
sketch3.addConstraint(Sketcher.Constraint("Vertical", 4, 3, 9, 3))
sketch3.addConstraint(Sketcher.Constraint("Vertical", 10, 3, 11, 3))
sketch3.addConstraint(Sketcher.Constraint("Vertical", 13, 3, 14, 3))
sketch3.addConstraint(Sketcher.Constraint("Vertical", 17, 3, 18, 3))
sketch3.addConstraint(Sketcher.Constraint("Vertical", 12, 3, 19, 3))
sketch3.addConstraint(Sketcher.Constraint("Vertical", 29, 3, 30, 3))
sketch3.addConstraint(Sketcher.Constraint("Vertical", 37, 3, 38, 3))
sketch3.addConstraint(Sketcher.Constraint("Vertical", 41, 3, 42, 3))
sketch3.addConstraint(Sketcher.Constraint("Diameter", 0, Q("0.164 in")))
sketch3.addConstraint(Sketcher.Constraint("DistanceX", 1, 3, 0, 3, Q("9 in")))
sketch3.addConstraint(Sketcher.Constraint("DistanceX", 4, 3, 1, 3, Q("1 in")))
sketch3.addConstraint(Sketcher.Constraint("DistanceX", 1, 3, 5, 3, Q("1 in")))
sketch3.addConstraint(Sketcher.Constraint("DistanceX", 2, 3, 6, 3, Q("1 in")))
sketch3.addConstraint(Sketcher.Constraint("DistanceX", 10, 3, 2, 3, Q("1 in")))
sketch3.addConstraint(Sketcher.Constraint("DistanceX", 12, 3, 0, 3, Q("3 in")))
sketch3.addConstraint(Sketcher.Constraint("DistanceX", 16, 3, 12, 3, Q("1 in")))
sketch3.addConstraint(Sketcher.Constraint("DistanceX", 17, 3, 13, 3, Q("1 in")))
sketch3.addConstraint(Sketcher.Constraint("DistanceX", 28, 3, 31, 3, Q("1 in")))
sketch3.addConstraint(Sketcher.Constraint("DistanceX", 36, 3, 16, 3, Q("1 in")))
sketch3.addConstraint(Sketcher.Constraint("DistanceY", 1, 3, 0, 3, Q("0.5 in")))
sketch3.addConstraint(Sketcher.Constraint("DistanceX", 2, 3, 1, 3, Q("0.5 in")))
sketch3.addConstraint(Sketcher.Constraint("DistanceY", 0, 3, -1, 1, Q("1.685 in")))
pocket2 = body.newObject("PartDesign::Pocket", "Pocket001")
pocket2.Profile = sketch3
pocket2.Length = Q("0.25 in")
doc.recompute()

fillet = body.newObject("PartDesign::Fillet", "Fillet")
fillet.Base = (pocket2, edges_at(pocket2, [
    (171.45, 0, -34.925),
    (-171.45, 0, -34.925),
    (-171.45, 0, -117.354),
    (-127, 0, -177.8),
    (-127, 0, -215.9),
    (127, 0, -215.9),
    (127, 0, -177.8),
    (171.45, 0, -117.354),
]))
fillet.Radius = Q("0.25 in")

sketch4 = body.newObject("Sketcher::SketchObject", "Sketch003")
sketch4.AttachmentSupport = (doc.getObject("XZ_Plane"), [""])
sketch4.MapMode = "FlatFace"
sketch4.AttachmentOffset = App.Placement(Vector(0, 0, -0.125 * 25.4), App.Rotation())
sketch4.addGeometry(Part.Circle(Vector(-202, -98, 0), Vector(0, 0, 1), 14), False)
sketch4.addGeometry(Part.Circle(Vector(-202, -98, 0), Vector(0, 0, 1), 11), False)
sketch4.addGeometry(Part.Circle(Vector(202, -98, 0), Vector(0, 0, 1), 14), False)
sketch4.addGeometry(Part.Circle(Vector(202, -98, 0), Vector(0, 0, 1), 11), False)
sketch4.addConstraint(Sketcher.Constraint("Coincident", 1, 3, 0, 3))
sketch4.addConstraint(Sketcher.Constraint("Coincident", 3, 3, 2, 3))
sketch4.addConstraint(Sketcher.Constraint("Equal", 0, 2))
sketch4.addConstraint(Sketcher.Constraint("Equal", 1, 3))
sketch4.addConstraint(Sketcher.Constraint("Symmetric", 0, 3, 2, 3, -2))
sketch4.addConstraint(Sketcher.Constraint("Diameter", 0, Q("1.135 in")))
sketch4.addConstraint(Sketcher.Constraint("Diameter", 1, Q("0.885 in")))
sketch4.addConstraint(Sketcher.Constraint("DistanceX", 0, 3, -1, 1, Q("202.217652 mm")))
sketch4.addConstraint(Sketcher.Constraint("DistanceY", 0, 3, -1, 1, Q("98.304106 mm")))
pad2 = body.newObject("PartDesign::Pad", "Pad001")
pad2.Profile = sketch4
pad2.Length = Q("0.25 in")

sketch5 = body.newObject("Sketcher::SketchObject", "Sketch004")
sketch5.AttachmentSupport = (doc.getObject("XZ_Plane"), [""])
sketch5.MapMode = "FlatFace"
sketch5.AttachmentOffset = App.Placement(Vector(0, 0, -0.125 * 25.4), App.Rotation())
add_polygon(sketch5, [(-81, -116), (-81, -70), (-35, -70), (-35, -116)])
sketch5.addConstraint(Sketcher.Constraint("Vertical", 0))
sketch5.addConstraint(Sketcher.Constraint("Horizontal", 1))
sketch5.addConstraint(Sketcher.Constraint("Vertical", 2))
sketch5.addConstraint(Sketcher.Constraint("Horizontal", 3))
sketch5.addConstraint(Sketcher.Constraint("Equal", 3, 0))
sketch5.addConstraint(Sketcher.Constraint("DistanceX", 1, 1, 1, 2, Q("1.8 in")))
sketch5.addConstraint(Sketcher.Constraint("DistanceY", 0, 2, -1, 1, Q("2.76 in")))
sketch5.addConstraint(Sketcher.Constraint("DistanceX", 0, 2, -1, 1, Q("81.176697 mm")))
pocket3 = body.newObject("PartDesign::Pocket", "Pocket002")
pocket3.Profile = sketch5
pocket3.Length = 620.42544
pocket3.Midplane = True

sketch6 = body.newObject("Sketcher::SketchObject", "Sketch005")
sketch6.AttachmentSupport = (doc.getObject("XZ_Plane"), [""])
sketch6.MapMode = "FlatFace"
sketch6.AttachmentOffset = App.Placement(Vector(0, 0, -0.125 * 25.4), App.Rotation())
sketch6.addGeometry(Part.Circle(Vector(-81.2, -115.8, 0), Vector(0, 0, 1), 3.8), False)
sketch6.addGeometry(Part.Circle(Vector(-35.5, -115.8, 0), Vector(0, 0, 1), 3.8), False)
sketch6.addGeometry(Part.Circle(Vector(-81.2, -70.1, 0), Vector(0, 0, 1), 3.8), False)
sketch6.addGeometry(Part.Circle(Vector(-35.5, -70.1, 0), Vector(0, 0, 1), 3.8), False)
sketch6.addConstraint(Sketcher.Constraint("Equal", 0, 1))
sketch6.addConstraint(Sketcher.Constraint("Equal", 1, 2))
sketch6.addConstraint(Sketcher.Constraint("Equal", 2, 3))
sketch6.addConstraint(Sketcher.Constraint("Horizontal", 0, 3, 1, 3))
sketch6.addConstraint(Sketcher.Constraint("Horizontal", 2, 3, 3, 3))
sketch6.addConstraint(Sketcher.Constraint("Vertical", 0, 3, 2, 3))
sketch6.addConstraint(Sketcher.Constraint("Vertical", 1, 3, 3, 3))
sketch6.addConstraint(Sketcher.Constraint("Diameter", 0, Q("0.3 in")))
sketch6.addConstraint(Sketcher.Constraint("DistanceX", 0, 3, 1, 3, Q("1.8 in")))
sketch6.addConstraint(Sketcher.Constraint("DistanceY", 0, 3, 2, 3, Q("1.8 in")))
sketch6.addConstraint(Sketcher.Constraint("DistanceY", 0, 3, -1, 1, Q("4.56 in")))
sketch6.addConstraint(Sketcher.Constraint("DistanceX", 0, 3, -1, 1, Q("81.176697 mm")))
pocket4 = body.newObject("PartDesign::Pocket", "Pocket003")
pocket4.Profile = sketch6
pocket4.Length = 620.42544
pocket4.Midplane = True
doc.recompute()

fillet2 = body.newObject("PartDesign::Fillet", "Fillet001")
fillet2.Base = (pocket4, edges_at(pocket4, [
    (-77.367, 0, -115.824),
    (-39.267, 0, -115.824),
    (-81.177, 0, -73.914),
    (-39.267, 0, -70.104),
    (-35.457, 0, -112.014),
    (-77.367, 0, -70.104),
    (-35.457, 0, -73.914),
    (-81.177, 0, -112.014),
]))
fillet2.Radius = Q("0.3 in")
doc.recompute()

mirrored = body.newObject("PartDesign::Mirrored", "Mirrored")
mirrored.Originals = [pocket3, pocket4]
mirrored.MirrorPlane = (doc.getObject("YZ_Plane"), [""])
body.Tip = mirrored
doc.recompute()

fillet3 = body.newObject("PartDesign::Fillet", "Fillet002")
fillet3.Base = (mirrored, edges_at(mirrored, [
    (77.367, 0, -115.824),
    (39.267, 0, -115.824),
    (81.177, 0, -73.914),
    (39.267, 0, -70.104),
    (35.457, 0, -112.014),
    (77.367, 0, -70.104),
    (35.457, 0, -73.914),
    (81.177, 0, -112.014),
]))
fillet3.Radius = Q("0.3 in")

doc.recompute()
